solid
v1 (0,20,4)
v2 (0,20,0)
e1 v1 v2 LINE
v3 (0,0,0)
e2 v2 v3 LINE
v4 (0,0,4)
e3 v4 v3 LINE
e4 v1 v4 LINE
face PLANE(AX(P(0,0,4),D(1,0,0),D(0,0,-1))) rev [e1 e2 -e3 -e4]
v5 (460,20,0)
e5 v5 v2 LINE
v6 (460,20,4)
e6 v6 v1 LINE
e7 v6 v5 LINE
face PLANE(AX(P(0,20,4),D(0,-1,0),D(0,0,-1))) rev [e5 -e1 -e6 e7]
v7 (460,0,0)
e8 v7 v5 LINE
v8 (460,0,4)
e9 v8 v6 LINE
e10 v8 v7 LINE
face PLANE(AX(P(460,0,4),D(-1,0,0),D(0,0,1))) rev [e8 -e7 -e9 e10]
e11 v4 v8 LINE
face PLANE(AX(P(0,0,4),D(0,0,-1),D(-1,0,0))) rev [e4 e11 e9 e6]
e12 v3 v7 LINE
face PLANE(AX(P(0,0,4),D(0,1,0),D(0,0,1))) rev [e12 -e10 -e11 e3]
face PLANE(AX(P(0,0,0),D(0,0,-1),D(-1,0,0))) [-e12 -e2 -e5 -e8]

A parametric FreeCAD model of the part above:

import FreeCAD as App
import Part
import Sketcher
from FreeCAD import Vector

doc = App.newDocument("Part")
body = doc.addObject("PartDesign::Body", "Body")

sketch1 = body.newObject("Sketcher::SketchObject", "Sketch")
sketch1.AttachmentSupport = (doc.getObject("XY_Plane"), [""])
sketch1.MapMode = "FlatFace"
sketch1.addGeometry(Part.LineSegment(Vector(0, 20, 0), Vector(0, 0, 0)), False)
sketch1.addGeometry(Part.LineSegment(Vector(0, 0, 0), Vector(460, 0, 0)), False)
sketch1.addGeometry(Part.LineSegment(Vector(460, 0, 0), Vector(460, 20, 0)), False)
sketch1.addGeometry(Part.LineSegment(Vector(460, 20, 0), Vector(0, 20, 0)), False)
sketch1.addConstraint(Sketcher.Constraint("Coincident", 0, 2, 1, 1))
sketch1.addConstraint(Sketcher.Constraint("Coincident", 1, 2, 2, 1))
sketch1.addConstraint(Sketcher.Constraint("Coincident", 2, 2, 3, 1))
sketch1.addConstraint(Sketcher.Constraint("Coincident", 3, 2, 0, 1))
sketch1.addConstraint(Sketcher.Constraint("Vertical", 0))
sketch1.addConstraint(Sketcher.Constraint("Horizontal", 1))
sketch1.addConstraint(Sketcher.Constraint("Vertical", 2))
sketch1.addConstraint(Sketcher.Constraint("Horizontal", 3))
sketch1.addConstraint(Sketcher.Constraint("Coincident", 0, 2, -1, 1))
sketch1.addConstraint(Sketcher.Constraint("DistanceX", 1, 1, 1, 2, 460.0))
sketch1.addConstraint(Sketcher.Constraint("DistanceY", 0, 2, 0, 1, 20.0))
pad1 = body.newObject("PartDesign::Pad", "Pad")
pad1.Profile = sketch1
pad1.Length = 4

doc.recompute()
